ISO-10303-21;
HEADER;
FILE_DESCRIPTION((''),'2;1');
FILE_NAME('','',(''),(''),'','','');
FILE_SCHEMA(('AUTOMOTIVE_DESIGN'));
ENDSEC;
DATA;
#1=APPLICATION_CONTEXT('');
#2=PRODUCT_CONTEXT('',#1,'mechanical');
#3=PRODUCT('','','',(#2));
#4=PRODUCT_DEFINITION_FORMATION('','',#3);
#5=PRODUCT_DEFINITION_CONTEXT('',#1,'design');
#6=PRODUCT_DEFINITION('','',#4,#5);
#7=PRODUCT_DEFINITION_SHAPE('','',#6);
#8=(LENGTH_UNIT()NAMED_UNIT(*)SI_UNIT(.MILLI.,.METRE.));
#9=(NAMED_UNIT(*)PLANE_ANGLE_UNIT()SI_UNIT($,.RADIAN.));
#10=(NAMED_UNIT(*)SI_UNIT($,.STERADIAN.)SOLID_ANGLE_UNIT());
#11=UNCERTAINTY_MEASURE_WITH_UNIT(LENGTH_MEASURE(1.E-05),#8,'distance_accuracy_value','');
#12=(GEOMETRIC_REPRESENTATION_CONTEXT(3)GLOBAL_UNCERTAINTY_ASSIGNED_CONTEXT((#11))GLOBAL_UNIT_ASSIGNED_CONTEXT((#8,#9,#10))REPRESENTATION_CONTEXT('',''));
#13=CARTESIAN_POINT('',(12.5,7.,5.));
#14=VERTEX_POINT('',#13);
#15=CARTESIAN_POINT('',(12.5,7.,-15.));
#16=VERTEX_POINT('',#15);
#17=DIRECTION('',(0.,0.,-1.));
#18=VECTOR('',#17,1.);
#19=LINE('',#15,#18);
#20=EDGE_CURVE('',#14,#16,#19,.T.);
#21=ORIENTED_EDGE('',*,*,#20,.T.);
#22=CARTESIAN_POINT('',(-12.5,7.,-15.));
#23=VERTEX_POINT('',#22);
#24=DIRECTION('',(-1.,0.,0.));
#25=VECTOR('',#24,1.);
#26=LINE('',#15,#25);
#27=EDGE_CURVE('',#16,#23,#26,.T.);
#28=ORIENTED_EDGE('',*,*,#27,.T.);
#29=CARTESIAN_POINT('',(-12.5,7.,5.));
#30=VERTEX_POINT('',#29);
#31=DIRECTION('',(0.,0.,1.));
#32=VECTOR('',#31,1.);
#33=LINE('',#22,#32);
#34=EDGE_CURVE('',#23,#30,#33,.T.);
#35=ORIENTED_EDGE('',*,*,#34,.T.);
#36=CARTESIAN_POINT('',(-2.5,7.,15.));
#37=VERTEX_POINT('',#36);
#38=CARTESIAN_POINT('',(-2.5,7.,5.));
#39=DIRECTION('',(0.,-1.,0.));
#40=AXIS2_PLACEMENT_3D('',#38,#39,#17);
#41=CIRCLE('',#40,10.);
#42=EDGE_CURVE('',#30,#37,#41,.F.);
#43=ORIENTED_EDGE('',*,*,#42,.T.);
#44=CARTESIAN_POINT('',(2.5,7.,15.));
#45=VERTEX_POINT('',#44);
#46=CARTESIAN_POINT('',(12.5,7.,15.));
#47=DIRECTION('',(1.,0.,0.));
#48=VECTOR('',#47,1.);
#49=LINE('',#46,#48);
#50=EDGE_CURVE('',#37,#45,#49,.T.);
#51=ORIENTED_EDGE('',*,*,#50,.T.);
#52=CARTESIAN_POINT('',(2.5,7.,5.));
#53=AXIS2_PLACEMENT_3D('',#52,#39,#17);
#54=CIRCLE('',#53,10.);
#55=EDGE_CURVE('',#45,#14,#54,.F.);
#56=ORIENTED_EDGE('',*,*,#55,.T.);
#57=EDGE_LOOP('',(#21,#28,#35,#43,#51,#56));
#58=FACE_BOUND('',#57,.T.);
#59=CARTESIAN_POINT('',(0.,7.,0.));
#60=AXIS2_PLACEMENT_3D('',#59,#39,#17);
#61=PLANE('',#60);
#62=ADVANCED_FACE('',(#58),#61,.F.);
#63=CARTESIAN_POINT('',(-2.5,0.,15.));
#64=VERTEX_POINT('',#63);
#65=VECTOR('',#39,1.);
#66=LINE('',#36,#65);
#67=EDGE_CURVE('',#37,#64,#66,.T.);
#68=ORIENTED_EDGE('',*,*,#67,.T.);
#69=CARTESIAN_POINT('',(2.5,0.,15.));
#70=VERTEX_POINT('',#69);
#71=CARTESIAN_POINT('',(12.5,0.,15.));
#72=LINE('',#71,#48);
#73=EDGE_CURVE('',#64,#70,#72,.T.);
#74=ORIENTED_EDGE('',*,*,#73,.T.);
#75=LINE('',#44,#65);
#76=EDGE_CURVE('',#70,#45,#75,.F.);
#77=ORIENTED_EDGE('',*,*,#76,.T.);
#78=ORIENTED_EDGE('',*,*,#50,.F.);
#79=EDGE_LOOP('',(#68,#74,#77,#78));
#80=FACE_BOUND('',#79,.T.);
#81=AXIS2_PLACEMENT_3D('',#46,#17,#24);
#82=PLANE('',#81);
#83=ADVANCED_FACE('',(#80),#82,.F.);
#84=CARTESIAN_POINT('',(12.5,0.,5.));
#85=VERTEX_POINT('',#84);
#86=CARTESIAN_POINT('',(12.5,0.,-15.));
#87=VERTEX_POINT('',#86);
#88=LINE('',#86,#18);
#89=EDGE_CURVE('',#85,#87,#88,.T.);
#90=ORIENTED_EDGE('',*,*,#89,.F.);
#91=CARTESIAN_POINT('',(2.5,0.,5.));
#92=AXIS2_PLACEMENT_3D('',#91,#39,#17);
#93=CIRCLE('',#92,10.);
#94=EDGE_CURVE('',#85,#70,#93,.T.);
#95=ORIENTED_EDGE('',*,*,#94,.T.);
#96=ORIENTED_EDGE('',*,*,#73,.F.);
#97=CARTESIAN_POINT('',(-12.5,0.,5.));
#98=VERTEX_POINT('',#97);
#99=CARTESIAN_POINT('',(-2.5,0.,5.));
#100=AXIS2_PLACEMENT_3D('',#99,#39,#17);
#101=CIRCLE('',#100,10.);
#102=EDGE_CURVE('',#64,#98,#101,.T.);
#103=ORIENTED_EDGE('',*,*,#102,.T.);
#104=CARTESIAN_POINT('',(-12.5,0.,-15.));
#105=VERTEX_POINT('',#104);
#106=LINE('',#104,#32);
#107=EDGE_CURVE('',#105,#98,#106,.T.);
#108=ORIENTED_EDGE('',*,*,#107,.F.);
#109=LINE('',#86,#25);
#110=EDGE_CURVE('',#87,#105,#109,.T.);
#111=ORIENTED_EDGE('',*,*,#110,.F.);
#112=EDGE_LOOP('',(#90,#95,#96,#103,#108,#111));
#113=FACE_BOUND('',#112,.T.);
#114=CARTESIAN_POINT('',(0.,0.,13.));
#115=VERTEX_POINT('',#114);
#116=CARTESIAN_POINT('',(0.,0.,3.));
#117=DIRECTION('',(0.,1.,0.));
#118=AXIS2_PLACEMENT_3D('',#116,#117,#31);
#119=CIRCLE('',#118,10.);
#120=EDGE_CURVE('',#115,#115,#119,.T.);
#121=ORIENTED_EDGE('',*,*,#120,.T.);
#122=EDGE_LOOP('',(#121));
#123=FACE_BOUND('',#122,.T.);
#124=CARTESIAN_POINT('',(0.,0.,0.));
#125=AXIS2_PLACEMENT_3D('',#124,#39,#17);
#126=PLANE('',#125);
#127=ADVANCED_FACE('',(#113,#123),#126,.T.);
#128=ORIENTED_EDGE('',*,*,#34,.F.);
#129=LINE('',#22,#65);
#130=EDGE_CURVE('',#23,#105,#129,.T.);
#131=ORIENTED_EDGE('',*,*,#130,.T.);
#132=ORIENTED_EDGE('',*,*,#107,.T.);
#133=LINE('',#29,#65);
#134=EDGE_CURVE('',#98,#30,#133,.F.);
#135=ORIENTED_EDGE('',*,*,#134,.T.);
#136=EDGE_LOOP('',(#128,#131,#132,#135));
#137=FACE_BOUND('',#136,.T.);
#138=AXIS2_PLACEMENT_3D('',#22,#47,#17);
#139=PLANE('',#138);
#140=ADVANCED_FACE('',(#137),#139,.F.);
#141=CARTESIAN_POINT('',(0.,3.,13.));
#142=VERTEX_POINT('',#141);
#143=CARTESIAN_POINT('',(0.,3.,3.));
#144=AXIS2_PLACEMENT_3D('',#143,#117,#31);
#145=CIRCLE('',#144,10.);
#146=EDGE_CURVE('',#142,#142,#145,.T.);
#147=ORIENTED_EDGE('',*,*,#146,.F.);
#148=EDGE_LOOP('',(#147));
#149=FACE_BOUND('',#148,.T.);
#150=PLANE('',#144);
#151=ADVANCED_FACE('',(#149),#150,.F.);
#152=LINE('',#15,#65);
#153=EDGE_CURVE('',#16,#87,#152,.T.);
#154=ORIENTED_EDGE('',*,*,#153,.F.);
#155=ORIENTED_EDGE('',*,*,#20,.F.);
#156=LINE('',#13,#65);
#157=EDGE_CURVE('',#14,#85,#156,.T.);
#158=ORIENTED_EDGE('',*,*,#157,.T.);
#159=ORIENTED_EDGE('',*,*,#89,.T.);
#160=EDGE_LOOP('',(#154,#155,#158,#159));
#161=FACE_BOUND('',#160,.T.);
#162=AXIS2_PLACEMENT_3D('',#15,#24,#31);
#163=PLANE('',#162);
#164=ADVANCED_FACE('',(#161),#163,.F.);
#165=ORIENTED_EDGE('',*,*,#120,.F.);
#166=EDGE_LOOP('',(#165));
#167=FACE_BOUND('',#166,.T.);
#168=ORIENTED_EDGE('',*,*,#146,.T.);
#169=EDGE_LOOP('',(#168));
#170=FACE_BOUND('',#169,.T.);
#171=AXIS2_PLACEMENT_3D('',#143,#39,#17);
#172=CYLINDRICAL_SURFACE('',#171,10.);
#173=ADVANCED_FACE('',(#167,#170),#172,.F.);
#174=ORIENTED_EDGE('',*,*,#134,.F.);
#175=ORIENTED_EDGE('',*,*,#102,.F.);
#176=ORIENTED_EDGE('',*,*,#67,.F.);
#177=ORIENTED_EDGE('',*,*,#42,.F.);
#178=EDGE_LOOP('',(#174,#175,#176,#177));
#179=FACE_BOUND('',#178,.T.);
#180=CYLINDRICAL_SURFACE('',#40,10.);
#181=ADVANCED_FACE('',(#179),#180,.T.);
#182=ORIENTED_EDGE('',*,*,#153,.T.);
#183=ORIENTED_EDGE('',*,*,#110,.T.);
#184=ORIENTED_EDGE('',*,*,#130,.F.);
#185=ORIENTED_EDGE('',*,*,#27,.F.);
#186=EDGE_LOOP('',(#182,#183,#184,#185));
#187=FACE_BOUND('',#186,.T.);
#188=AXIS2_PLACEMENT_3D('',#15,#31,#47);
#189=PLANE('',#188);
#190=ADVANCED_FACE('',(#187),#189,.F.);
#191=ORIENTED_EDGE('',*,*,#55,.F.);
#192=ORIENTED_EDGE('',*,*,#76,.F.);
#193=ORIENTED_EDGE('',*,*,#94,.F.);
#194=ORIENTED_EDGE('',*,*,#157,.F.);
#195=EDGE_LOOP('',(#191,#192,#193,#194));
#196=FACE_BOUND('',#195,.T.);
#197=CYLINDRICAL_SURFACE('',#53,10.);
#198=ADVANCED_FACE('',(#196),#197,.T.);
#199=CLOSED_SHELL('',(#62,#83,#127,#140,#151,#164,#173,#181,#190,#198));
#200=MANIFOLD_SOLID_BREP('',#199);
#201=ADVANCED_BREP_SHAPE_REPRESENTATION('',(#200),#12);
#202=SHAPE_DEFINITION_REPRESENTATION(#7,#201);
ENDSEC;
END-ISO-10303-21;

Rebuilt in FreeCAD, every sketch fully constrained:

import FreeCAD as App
import Part
import Sketcher
from FreeCAD import Vector
Q = App.Units.Quantity


def edges_at(feature, points):
    """Names of the edges that pass closest to the given points."""
    edges = feature.Shape.Edges
    near = lambda p: min(range(len(edges)), key=lambda i: edges[i].distToShape(Part.Vertex(*p))[0])
    return sorted({f"Edge{near(p) + 1}" for p in points})


def add_polygon(sketch, points):
    """Adds a closed chain of lines whose ends are joined by coincident constraints."""
    first, n = sketch.GeometryCount, len(points)
    for a, b in zip(points, points[1:] + points[:1]):
        sketch.addGeometry(Part.LineSegment(App.Vector(*a, 0), App.Vector(*b, 0)), False)
    for i in range(n):
        sketch.addConstraint(Sketcher.Constraint("Coincident", first + i, 2, first + (i + 1) % n, 1))

doc = App.newDocument("Part")
body = doc.addObject("PartDesign::Body", "Body")

# Sketch on XZ plane
sketch1 = body.newObject("Sketcher::SketchObject", "Sketch")
sketch1.AttachmentSupport = (doc.getObject("XZ_Plane"), [""])
sketch1.MapMode = "FlatFace"
add_polygon(sketch1, [(-12, -15), (-12, 15), (12, 15), (12, -15)])  # lines 0-3
sketch1.addConstraint([
    Sketcher.Constraint("Vertical", 0),
    Sketcher.Constraint("Horizontal", 1),
    Sketcher.Constraint("Vertical", 2),
    Sketcher.Constraint("Horizontal", 3),
    Sketcher.Constraint("Symmetric", 0, 2, 2, 2, -1, 1),
    Sketcher.Constraint("DistanceX", 1, 1, 1, 2, Q("25 mm")),
    Sketcher.Constraint("DistanceY", 0, 1, 0, 2, Q("30 mm")),
])
pad1 = body.newObject("PartDesign::Pad", "Pad")
pad1.Profile = sketch1
pad1.Length = 7
pad1.Reversed = True

# Sketch on XZ plane
sketch2 = body.newObject("Sketcher::SketchObject", "Sketch001")
sketch2.AttachmentSupport = (doc.getObject("XZ_Plane"), [""])
sketch2.MapMode = "FlatFace"
sketch2.addGeometry(Part.Circle(Vector(0, 3, 0), Vector(0, 0, 1), 10), False)
sketch2.addConstraint([
    Sketcher.Constraint("PointOnObject", 0, 3, -2),
    Sketcher.Constraint("Diameter", 0, Q("20 mm")),
    Sketcher.Constraint("DistanceY", -1, 1, 0, 3, Q("3 mm")),
])
pocket1 = body.newObject("PartDesign::Pocket", "Pocket")
pocket1.Profile = sketch2
pocket1.Length = 3
doc.recompute()

fillet = body.newObject("PartDesign::Fillet", "Fillet")
fillet.Base = (pocket1, edges_at(pocket1, [(-12.5, 3.5, 15)]))
fillet.Radius = 10
doc.recompute()

fillet2 = body.newObject("PartDesign::Fillet", "Fillet001")
fillet2.Base = (fillet, edges_at(fillet, [(12.5, 3.5, 15)]))
fillet2.Radius = 10

doc.recompute()
